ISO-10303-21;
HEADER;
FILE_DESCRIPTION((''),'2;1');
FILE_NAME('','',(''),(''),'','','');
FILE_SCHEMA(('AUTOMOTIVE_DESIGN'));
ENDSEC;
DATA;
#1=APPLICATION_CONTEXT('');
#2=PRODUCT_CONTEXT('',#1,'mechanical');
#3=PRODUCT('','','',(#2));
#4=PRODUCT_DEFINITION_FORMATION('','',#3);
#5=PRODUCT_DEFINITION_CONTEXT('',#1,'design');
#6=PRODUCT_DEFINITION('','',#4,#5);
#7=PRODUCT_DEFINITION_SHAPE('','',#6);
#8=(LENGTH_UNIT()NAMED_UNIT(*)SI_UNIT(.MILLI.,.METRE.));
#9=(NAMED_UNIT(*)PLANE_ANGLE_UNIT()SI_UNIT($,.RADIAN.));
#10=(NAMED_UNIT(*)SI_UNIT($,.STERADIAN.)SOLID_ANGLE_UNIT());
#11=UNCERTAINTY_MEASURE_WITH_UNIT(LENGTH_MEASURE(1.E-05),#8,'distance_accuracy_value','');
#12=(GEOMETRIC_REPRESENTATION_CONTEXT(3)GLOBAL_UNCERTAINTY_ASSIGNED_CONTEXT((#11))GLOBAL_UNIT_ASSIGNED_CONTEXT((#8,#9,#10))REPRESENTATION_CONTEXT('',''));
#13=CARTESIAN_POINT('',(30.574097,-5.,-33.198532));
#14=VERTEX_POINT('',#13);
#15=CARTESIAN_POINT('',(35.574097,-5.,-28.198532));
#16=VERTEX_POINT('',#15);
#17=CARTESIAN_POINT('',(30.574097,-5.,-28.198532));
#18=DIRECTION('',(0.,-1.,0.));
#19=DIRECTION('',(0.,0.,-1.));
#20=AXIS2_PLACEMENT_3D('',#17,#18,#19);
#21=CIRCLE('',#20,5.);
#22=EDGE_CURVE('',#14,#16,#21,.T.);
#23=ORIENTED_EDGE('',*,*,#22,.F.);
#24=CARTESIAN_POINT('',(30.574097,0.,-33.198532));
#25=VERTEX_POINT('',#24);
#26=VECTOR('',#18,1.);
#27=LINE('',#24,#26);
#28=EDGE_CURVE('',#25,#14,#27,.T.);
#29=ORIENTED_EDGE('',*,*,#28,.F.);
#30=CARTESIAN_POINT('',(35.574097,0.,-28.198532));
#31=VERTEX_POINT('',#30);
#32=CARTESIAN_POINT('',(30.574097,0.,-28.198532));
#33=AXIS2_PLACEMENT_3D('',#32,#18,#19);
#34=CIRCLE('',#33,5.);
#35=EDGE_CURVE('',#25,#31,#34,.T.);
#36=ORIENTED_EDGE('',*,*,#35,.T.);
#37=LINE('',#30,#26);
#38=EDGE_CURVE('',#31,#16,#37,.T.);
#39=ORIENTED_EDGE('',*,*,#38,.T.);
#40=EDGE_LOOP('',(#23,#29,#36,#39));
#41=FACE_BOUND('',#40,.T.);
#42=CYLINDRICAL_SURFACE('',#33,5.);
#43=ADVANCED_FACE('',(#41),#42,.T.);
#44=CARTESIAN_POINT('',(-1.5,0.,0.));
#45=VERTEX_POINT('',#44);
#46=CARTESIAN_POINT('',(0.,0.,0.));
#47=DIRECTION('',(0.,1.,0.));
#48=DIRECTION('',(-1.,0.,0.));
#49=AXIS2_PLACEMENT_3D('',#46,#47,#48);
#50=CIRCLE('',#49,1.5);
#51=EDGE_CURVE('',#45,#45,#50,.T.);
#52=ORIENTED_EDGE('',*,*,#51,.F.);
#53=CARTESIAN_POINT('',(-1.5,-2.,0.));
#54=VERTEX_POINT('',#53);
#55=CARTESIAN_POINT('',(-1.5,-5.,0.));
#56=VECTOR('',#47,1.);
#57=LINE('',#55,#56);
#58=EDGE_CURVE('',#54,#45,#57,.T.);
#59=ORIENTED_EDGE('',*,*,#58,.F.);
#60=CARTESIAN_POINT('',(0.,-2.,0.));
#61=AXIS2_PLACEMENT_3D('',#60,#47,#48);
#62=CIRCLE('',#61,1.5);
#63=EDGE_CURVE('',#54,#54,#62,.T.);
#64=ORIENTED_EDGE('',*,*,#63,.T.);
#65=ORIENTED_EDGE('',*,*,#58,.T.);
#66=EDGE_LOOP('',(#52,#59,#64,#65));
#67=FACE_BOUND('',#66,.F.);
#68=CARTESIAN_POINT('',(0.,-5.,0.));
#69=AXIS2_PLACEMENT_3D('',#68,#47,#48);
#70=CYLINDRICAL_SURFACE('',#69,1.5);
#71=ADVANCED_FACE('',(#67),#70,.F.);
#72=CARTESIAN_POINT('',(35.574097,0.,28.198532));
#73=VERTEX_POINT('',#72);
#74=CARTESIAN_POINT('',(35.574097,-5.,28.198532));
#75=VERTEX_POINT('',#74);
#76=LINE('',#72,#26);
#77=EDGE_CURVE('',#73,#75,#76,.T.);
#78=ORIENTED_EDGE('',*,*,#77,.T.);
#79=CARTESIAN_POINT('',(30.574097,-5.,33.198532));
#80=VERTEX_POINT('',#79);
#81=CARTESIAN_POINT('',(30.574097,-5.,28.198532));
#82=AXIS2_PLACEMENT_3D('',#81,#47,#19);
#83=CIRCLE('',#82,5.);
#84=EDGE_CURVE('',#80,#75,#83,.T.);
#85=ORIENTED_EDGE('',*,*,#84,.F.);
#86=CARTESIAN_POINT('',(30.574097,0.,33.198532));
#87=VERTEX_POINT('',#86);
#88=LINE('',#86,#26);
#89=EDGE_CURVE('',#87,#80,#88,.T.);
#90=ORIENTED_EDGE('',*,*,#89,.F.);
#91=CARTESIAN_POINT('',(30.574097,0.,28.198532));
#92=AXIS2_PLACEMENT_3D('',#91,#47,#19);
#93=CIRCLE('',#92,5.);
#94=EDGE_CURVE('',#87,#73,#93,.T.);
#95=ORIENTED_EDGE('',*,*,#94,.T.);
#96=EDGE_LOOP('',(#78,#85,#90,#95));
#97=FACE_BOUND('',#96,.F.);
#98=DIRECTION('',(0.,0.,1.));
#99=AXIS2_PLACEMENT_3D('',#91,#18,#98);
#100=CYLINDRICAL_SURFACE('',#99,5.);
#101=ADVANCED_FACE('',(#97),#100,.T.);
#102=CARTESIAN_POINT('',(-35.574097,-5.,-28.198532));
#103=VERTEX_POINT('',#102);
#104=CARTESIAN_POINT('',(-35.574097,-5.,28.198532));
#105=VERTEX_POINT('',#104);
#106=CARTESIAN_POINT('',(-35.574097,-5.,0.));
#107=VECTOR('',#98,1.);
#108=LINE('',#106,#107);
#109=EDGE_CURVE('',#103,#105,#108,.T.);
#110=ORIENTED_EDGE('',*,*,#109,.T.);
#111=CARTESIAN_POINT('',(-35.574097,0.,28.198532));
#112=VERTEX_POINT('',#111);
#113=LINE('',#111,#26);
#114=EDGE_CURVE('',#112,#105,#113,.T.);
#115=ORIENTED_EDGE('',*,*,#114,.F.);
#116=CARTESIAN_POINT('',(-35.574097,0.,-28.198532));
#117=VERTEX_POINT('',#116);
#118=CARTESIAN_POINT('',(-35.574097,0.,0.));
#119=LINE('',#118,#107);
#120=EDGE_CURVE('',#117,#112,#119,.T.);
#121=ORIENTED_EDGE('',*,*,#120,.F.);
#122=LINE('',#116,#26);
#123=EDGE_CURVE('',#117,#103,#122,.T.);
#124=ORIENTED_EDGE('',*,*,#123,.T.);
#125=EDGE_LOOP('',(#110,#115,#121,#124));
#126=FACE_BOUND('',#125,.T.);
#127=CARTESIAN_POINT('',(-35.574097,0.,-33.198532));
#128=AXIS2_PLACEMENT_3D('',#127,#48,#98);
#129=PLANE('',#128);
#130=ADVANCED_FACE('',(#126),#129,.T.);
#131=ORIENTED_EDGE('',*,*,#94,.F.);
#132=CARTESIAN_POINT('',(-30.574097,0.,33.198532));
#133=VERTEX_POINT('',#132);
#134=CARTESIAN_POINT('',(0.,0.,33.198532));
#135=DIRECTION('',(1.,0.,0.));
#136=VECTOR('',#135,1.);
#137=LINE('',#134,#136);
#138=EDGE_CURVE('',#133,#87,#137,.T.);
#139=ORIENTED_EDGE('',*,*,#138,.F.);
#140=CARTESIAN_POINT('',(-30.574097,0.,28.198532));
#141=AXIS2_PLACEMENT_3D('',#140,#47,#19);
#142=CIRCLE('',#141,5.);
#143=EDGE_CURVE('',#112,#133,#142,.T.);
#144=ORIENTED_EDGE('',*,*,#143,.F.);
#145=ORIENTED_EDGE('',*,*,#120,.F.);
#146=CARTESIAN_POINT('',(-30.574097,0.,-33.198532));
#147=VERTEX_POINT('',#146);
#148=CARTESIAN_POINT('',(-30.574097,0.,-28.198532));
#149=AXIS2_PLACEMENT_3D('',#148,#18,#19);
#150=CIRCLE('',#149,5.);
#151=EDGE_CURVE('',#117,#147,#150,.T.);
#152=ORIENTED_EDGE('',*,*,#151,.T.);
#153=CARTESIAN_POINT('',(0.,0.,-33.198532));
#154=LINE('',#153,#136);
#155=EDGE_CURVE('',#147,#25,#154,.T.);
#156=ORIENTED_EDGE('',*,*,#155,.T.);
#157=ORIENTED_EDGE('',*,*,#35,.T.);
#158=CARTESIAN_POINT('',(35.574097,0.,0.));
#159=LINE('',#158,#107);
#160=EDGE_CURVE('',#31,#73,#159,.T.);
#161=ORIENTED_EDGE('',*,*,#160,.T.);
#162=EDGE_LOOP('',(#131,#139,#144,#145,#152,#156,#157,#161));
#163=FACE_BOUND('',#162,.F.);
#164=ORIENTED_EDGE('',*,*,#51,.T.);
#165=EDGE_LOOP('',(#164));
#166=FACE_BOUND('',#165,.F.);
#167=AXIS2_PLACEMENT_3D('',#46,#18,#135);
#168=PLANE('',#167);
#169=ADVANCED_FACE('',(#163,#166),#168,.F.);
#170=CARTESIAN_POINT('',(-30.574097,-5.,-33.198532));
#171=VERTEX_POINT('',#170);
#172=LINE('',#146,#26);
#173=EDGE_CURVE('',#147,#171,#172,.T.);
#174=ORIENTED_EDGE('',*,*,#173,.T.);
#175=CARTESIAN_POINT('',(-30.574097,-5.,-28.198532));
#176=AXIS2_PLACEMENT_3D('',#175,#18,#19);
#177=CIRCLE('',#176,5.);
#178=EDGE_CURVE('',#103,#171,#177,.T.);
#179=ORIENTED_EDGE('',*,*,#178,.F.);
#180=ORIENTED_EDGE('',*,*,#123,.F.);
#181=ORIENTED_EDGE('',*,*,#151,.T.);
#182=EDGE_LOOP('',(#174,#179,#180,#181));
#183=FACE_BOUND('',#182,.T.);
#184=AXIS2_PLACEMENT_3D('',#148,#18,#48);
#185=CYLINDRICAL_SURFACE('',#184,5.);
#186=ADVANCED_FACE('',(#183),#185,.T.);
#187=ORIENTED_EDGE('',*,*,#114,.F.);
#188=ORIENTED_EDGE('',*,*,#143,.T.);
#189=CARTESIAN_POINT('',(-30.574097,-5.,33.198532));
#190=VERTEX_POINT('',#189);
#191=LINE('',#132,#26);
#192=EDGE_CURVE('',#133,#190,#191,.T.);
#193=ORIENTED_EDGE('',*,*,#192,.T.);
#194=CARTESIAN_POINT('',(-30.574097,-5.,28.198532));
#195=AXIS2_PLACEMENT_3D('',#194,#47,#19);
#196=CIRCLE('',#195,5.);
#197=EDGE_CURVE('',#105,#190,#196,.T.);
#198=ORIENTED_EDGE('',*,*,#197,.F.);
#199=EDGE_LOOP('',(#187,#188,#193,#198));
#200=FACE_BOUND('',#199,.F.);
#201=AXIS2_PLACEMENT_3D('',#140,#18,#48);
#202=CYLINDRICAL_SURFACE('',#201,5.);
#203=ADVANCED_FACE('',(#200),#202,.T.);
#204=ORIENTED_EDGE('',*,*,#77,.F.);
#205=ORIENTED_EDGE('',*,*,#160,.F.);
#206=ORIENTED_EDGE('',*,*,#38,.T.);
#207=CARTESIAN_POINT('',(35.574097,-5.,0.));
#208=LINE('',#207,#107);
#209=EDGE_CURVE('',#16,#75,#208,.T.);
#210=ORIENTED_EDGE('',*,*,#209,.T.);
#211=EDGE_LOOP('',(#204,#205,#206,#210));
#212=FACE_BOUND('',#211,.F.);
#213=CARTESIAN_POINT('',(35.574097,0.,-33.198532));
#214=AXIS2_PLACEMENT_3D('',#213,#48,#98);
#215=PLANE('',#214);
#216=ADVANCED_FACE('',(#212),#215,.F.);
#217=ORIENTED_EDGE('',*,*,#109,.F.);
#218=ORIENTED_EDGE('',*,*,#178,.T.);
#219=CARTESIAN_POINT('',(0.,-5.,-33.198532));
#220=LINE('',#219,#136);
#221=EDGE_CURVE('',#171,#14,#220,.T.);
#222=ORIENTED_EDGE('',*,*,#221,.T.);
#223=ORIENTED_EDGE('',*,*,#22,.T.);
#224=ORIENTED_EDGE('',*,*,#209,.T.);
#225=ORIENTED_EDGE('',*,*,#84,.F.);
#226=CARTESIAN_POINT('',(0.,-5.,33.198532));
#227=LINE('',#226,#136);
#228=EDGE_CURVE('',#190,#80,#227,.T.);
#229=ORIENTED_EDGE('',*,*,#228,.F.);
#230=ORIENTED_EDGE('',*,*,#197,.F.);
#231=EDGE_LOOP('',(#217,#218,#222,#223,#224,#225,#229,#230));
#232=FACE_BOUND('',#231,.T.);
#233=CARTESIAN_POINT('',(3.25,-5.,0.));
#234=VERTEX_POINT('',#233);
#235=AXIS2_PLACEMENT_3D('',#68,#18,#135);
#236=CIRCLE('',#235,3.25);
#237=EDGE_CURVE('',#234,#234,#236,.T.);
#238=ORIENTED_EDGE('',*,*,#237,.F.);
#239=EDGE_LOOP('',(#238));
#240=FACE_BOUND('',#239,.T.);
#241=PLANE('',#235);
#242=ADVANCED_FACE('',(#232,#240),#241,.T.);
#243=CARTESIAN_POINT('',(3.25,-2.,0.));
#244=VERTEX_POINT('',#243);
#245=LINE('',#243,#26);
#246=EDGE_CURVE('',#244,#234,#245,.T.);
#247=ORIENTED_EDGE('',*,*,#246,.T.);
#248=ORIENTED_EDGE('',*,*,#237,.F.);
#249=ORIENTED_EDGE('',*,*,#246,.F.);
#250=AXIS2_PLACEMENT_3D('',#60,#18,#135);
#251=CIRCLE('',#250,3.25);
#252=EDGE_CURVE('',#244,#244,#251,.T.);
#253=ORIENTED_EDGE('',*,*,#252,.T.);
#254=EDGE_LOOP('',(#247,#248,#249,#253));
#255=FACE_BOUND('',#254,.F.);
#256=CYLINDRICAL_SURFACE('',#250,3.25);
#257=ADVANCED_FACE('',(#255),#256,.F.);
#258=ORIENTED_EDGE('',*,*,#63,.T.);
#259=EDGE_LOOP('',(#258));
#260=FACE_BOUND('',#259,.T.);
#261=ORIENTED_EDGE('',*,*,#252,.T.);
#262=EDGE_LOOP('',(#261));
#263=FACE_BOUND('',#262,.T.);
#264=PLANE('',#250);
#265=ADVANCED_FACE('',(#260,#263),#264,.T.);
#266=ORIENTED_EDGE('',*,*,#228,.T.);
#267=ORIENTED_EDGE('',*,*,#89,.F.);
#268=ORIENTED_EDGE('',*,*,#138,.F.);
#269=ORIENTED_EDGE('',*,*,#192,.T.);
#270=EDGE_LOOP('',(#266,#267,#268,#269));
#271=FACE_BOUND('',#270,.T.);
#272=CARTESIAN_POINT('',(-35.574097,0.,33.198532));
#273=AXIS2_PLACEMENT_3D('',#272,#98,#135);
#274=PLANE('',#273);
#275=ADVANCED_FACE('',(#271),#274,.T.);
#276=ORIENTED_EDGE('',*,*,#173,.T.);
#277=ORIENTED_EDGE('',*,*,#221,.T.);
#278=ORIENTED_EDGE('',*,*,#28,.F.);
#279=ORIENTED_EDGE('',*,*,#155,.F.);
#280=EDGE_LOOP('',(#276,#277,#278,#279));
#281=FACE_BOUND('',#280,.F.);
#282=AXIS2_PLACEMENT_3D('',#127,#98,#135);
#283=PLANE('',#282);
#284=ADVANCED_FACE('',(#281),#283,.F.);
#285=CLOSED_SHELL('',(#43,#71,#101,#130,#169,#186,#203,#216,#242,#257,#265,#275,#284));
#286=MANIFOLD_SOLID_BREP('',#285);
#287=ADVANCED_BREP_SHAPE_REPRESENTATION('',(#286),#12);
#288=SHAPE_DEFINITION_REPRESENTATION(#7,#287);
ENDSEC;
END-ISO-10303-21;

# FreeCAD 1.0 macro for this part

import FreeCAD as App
import Part
import Sketcher

V = App.Vector


def edges_at(feature, points):
    """Names of the edges that pass closest to the given points."""
    edges = feature.Shape.Edges
    near = lambda p: min(range(len(edges)), key=lambda i: edges[i].distToShape(Part.Vertex(*p))[0])
    return sorted({f"Edge{near(p) + 1}" for p in points})


def add_polygon(sketch, points):
    """Adds a closed chain of lines whose ends are joined by coincident constraints."""
    first, n = sketch.GeometryCount, len(points)
    for a, b in zip(points, points[1:] + points[:1]):
        sketch.addGeometry(Part.LineSegment(App.Vector(*a, 0), App.Vector(*b, 0)), False)
    for i in range(n):
        sketch.addConstraint(Sketcher.Constraint("Coincident", first + i, 2, first + (i + 1) % n, 1))

doc = App.newDocument("Part")
body = doc.addObject("PartDesign::Body", "Body")

sketch1 = doc.addObject("Sketcher::SketchObject", "Sketch")
body.addObject(sketch1)
sketch1.AttachmentSupport = (doc.XZ_Plane, [""])
sketch1.MapMode = "FlatFace"
add_polygon(sketch1, [(-36, 33), (-36, -33), (36, -33), (36, 33)])
sketch1.addConstraint(Sketcher.Constraint("Vertical", 0))
sketch1.addConstraint(Sketcher.Constraint("Horizontal", 1))
sketch1.addConstraint(Sketcher.Constraint("Vertical", 2))
sketch1.addConstraint(Sketcher.Constraint("Horizontal", 3))
sketch1.addConstraint(Sketcher.Constraint("Symmetric", 0, 2, 2, 2, -1, 1))
sketch1.addConstraint(Sketcher.Constraint("DistanceX", 1, 1, 1, 2, 71.148194))
sketch1.addConstraint(Sketcher.Constraint("DistanceY", 0, 2, 0, 1, 66.397064))
pad1 = doc.addObject("PartDesign::Pad", "Pad")
body.addObject(pad1)
pad1.Profile = sketch1
pad1.Length = 5

sketch2 = doc.addObject("Sketcher::SketchObject", "Sketch001")
body.addObject(sketch2)
sketch2.AttachmentSupport = (doc.XZ_Plane, [""])
sketch2.MapMode = "FlatFace"
sketch2.AttachmentOffset = App.Placement(V(0, 0, 5), App.Rotation())
sketch2.addGeometry(Part.Circle(V(0, 0, 0), V(0, 0, 1), 1.5), False)
sketch2.addConstraint(Sketcher.Constraint("Coincident", 0, 3, -1, 1))
sketch2.addConstraint(Sketcher.Constraint("Diameter", 0, 3.0))
doc.recompute()
hole = doc.addObject("PartDesign::Hole", "Hole")
body.addObject(hole)
hole.Profile = sketch2
hole.ThreadType = "None"
hole.Diameter = 3
hole.DepthType = "ThroughAll"
hole.HoleCutType = "Counterbore"
hole.HoleCutDiameter = 6.5
hole.HoleCutDepth = 3
doc.recompute()

fillet = doc.addObject("PartDesign::Fillet", "Fillet")
body.addObject(fillet)
fillet.Base = (hole, edges_at(hole, [
    (35.574, -2.5, 33.199),
    (-35.574, -2.5, 33.199),
    (35.574, -2.5, -33.199),
    (-35.574, -2.5, -33.199),
]))
fillet.Radius = 5

doc.recompute()
